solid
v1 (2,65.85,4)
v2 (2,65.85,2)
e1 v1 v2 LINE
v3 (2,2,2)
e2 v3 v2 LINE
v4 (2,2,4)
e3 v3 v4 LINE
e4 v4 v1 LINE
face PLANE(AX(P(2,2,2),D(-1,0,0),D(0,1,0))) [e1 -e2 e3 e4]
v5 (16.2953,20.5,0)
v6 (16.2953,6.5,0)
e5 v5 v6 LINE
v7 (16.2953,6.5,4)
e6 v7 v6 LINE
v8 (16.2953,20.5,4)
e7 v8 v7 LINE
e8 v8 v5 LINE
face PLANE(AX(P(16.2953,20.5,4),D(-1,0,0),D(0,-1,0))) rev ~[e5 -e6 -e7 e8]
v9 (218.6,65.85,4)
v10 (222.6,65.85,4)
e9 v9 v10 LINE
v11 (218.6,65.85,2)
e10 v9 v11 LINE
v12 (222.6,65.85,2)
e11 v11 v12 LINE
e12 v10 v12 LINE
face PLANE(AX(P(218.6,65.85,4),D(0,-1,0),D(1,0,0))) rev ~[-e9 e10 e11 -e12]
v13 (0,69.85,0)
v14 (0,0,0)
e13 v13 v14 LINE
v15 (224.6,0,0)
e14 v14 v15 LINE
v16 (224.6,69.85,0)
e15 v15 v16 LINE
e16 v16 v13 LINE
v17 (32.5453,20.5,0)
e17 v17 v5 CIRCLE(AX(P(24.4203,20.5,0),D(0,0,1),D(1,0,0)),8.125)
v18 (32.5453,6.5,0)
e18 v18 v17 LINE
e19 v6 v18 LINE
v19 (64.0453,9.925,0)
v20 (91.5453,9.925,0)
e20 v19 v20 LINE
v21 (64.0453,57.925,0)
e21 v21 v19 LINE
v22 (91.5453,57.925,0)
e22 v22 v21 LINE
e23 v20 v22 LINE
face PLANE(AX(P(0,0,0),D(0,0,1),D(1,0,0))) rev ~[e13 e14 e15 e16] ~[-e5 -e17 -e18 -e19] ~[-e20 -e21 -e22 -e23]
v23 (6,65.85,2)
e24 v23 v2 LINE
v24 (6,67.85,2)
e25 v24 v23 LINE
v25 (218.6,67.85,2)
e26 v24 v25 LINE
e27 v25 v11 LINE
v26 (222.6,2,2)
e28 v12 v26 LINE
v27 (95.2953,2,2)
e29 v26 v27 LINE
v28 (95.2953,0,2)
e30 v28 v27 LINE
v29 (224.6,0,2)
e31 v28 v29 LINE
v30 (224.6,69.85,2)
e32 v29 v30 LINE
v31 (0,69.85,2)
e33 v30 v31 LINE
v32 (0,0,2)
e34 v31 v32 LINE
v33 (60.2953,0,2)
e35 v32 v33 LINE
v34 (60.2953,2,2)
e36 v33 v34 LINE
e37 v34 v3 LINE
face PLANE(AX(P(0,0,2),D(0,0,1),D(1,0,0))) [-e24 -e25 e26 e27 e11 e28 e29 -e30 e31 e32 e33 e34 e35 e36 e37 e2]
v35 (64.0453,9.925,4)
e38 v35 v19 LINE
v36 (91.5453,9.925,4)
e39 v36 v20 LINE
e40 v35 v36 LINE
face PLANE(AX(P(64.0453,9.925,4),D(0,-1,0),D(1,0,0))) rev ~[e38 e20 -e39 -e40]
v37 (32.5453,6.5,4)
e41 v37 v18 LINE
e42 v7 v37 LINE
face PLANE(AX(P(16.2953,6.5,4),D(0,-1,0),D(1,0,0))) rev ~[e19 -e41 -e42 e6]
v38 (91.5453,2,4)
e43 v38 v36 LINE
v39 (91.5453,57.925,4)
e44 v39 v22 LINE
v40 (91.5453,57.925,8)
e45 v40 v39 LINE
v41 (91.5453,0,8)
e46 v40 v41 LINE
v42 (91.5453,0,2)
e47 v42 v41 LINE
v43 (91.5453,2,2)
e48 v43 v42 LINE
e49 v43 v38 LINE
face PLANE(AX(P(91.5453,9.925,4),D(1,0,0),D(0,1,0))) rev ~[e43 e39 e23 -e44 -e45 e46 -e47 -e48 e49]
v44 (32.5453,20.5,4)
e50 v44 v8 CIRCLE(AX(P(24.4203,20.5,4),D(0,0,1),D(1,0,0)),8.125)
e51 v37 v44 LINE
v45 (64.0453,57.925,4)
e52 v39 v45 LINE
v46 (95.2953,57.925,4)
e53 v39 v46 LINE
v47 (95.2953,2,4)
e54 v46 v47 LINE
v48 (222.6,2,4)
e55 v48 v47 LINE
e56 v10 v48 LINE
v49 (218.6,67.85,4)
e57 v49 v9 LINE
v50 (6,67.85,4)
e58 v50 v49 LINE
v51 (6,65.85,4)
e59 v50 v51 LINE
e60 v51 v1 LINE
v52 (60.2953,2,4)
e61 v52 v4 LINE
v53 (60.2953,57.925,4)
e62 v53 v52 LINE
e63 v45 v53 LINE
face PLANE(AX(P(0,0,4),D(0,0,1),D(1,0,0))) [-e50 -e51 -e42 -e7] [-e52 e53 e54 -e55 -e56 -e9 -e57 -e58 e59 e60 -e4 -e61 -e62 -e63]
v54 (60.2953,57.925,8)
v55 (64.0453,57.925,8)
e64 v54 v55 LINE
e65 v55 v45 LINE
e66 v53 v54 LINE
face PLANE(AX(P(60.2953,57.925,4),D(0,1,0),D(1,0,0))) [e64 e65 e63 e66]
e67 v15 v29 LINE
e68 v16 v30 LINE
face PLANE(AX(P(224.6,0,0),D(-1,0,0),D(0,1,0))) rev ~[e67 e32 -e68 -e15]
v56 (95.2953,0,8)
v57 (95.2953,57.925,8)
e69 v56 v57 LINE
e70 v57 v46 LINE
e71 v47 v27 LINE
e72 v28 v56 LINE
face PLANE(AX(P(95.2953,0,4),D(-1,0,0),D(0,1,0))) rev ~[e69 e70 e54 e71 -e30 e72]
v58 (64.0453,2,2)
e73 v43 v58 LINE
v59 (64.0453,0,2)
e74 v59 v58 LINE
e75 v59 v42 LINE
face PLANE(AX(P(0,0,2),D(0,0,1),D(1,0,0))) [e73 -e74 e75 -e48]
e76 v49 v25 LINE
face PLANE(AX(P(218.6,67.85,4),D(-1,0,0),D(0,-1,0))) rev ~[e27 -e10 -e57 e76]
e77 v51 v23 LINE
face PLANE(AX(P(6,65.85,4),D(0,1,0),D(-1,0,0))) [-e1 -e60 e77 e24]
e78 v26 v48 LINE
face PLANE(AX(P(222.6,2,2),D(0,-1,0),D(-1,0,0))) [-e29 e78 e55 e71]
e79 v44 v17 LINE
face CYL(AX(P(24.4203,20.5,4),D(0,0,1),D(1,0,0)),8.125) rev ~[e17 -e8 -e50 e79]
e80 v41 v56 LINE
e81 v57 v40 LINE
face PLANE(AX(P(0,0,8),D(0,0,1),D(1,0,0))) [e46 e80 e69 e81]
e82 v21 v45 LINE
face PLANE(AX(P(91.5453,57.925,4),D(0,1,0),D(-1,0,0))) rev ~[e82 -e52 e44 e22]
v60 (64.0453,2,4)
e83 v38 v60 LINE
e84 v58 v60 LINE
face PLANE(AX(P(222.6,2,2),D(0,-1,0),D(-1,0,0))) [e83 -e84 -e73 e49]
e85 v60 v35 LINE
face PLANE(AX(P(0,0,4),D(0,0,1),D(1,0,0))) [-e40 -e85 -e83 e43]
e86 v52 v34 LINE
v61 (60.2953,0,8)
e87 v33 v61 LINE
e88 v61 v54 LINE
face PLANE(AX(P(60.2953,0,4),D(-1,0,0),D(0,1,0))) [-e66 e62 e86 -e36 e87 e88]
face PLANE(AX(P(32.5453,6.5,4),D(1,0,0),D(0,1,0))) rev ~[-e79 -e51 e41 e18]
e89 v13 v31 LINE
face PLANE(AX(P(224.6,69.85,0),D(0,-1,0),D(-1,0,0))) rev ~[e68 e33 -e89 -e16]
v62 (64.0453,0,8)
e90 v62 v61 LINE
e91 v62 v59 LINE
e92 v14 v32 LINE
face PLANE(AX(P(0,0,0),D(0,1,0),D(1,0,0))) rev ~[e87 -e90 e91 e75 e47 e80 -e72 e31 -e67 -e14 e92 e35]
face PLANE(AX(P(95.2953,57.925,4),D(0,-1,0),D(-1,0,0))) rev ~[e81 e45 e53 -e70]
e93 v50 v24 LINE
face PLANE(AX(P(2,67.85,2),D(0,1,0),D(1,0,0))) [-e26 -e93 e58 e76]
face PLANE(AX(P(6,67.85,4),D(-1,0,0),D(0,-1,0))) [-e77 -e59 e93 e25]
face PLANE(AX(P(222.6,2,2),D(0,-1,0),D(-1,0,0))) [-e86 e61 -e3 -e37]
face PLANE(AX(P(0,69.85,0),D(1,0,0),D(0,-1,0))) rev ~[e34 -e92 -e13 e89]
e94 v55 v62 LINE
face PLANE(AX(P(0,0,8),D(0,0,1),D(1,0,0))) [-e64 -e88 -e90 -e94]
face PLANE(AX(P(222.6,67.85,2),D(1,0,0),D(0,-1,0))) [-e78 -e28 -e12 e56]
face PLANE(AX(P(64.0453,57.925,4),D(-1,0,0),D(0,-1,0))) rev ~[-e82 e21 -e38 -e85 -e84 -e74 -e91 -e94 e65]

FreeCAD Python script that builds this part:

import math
import FreeCAD as App
import Part
import Sketcher
from FreeCAD import Vector
Q = App.Units.Quantity


def add_polygon(sketch, points):
    """Adds a closed chain of lines whose ends are joined by coincident constraints."""
    first, n = sketch.GeometryCount, len(points)
    for a, b in zip(points, points[1:] + points[:1]):
        sketch.addGeometry(Part.LineSegment(App.Vector(*a, 0), App.Vector(*b, 0)), False)
    for i in range(n):
        sketch.addConstraint(Sketcher.Constraint("Coincident", first + i, 2, first + (i + 1) % n, 1))

doc = App.newDocument("Part")
body = doc.addObject("PartDesign::Body", "Body")

sketch1 = body.newObject("Sketcher::SketchObject", "Sketch")
sketch1.AttachmentSupport = (doc.getObject("XY_Plane"), [""])
sketch1.MapMode = "FlatFace"
add_polygon(sketch1, [(0, 70), (0, 0), (225, 0), (225, 70)])
sketch1.addConstraint(Sketcher.Constraint("Vertical", 0))
sketch1.addConstraint(Sketcher.Constraint("Horizontal", 1))
sketch1.addConstraint(Sketcher.Constraint("Vertical", 2))
sketch1.addConstraint(Sketcher.Constraint("Horizontal", 3))
sketch1.addConstraint(Sketcher.Constraint("Coincident", 0, 2, -1, 1))
sketch1.addConstraint(Sketcher.Constraint("DistanceX", 1, 1, 1, 2, Q("224.6 mm")))
sketch1.addConstraint(Sketcher.Constraint("DistanceY", 0, 2, 0, 1, Q("69.85 mm")))
pad1 = body.newObject("PartDesign::Pad", "Pad")
pad1.Profile = sketch1
pad1.Length = 2

sketch2 = body.newObject("Sketcher::SketchObject", "Sketch001")
sketch2.AttachmentSupport = (doc.getObject("XY_Plane"), [""])
sketch2.MapMode = "FlatFace"
sketch2.AttachmentOffset = App.Placement(Vector(0, 0, 2), App.Rotation())
add_polygon(sketch2, [(223, 68), (2, 68), (2, 2), (223, 2)])
sketch2.addConstraint(Sketcher.Constraint("Horizontal", 0))
sketch2.addConstraint(Sketcher.Constraint("Vertical", 1))
sketch2.addConstraint(Sketcher.Constraint("Horizontal", 2))
sketch2.addConstraint(Sketcher.Constraint("Vertical", 3))
sketch2.addConstraint(Sketcher.Constraint("DistanceX", -1, 1, 0, 2, Q("2 mm")))
sketch2.addConstraint(Sketcher.Constraint("DistanceY", -1, 1, 1, 2, Q("2 mm")))
sketch2.addConstraint(Sketcher.Constraint("DistanceX", 0, 2, 0, 1, Q("220.6 mm")))
sketch2.addConstraint(Sketcher.Constraint("DistanceY", 1, 2, 1, 1, Q("65.85 mm")))
pad2 = body.newObject("PartDesign::Pad", "Pad001")
pad2.Profile = sketch2
pad2.Length = 2

sketch3 = body.newObject("Sketcher::SketchObject", "Sketch002")
sketch3.AttachmentSupport = (doc.getObject("XY_Plane"), [""])
sketch3.MapMode = "FlatFace"
sketch3.AttachmentOffset = App.Placement(Vector(0, 0, 4), App.Rotation())
add_polygon(sketch3, [(6, 67.8), (2, 67.8), (2, 65.8), (6, 65.8)])
add_polygon(sketch3, [(222.6, 65.8), (222.6, 67.8), (218.6, 67.8), (218.6, 65.8)])
sketch3.addConstraint(Sketcher.Constraint("Horizontal", 0))
sketch3.addConstraint(Sketcher.Constraint("Vertical", 1))
sketch3.addConstraint(Sketcher.Constraint("Horizontal", 2))
sketch3.addConstraint(Sketcher.Constraint("Vertical", 3))
sketch3.addConstraint(Sketcher.Constraint("Vertical", 4))
sketch3.addConstraint(Sketcher.Constraint("Horizontal", 5))
sketch3.addConstraint(Sketcher.Constraint("Vertical", 6))
sketch3.addConstraint(Sketcher.Constraint("Horizontal", 7))
sketch3.addConstraint(Sketcher.Constraint("Horizontal", 3, 2, 4, 2))
sketch3.addConstraint(Sketcher.Constraint("Horizontal", 2, 2, 6, 2))
sketch3.addConstraint(Sketcher.Constraint("Equal", 2, 5))
sketch3.addConstraint(Sketcher.Constraint("DistanceX", 0, 2, 0, 1, Q("4 mm")))
sketch3.addConstraint(Sketcher.Constraint("DistanceY", 1, 2, 1, 1, Q("2 mm")))
sketch3.addConstraint(Sketcher.Constraint("DistanceX", -1, 1, 0, 2, Q("2 mm")))
sketch3.addConstraint(Sketcher.Constraint("DistanceX", -1, 1, 4, 2, Q("222.6 mm")))
sketch3.addConstraint(Sketcher.Constraint("DistanceY", -1, 1, 0, 2, Q("67.85 mm")))
pocket1 = body.newObject("PartDesign::Pocket", "Pocket")
pocket1.Profile = sketch3
pocket1.Length = 2

sketch4 = body.newObject("Sketcher::SketchObject", "Sketch003")
sketch4.AttachmentSupport = (doc.getObject("XY_Plane"), [""])
sketch4.MapMode = "FlatFace"
sketch4.AttachmentOffset = App.Placement(Vector(0, 0, 4), App.Rotation())
add_polygon(sketch4, [(16, 20), (16, 6), (33, 6), (33, 20)])
sketch4.addConstraint(Sketcher.Constraint("Vertical", 0))
sketch4.addConstraint(Sketcher.Constraint("Horizontal", 1))
sketch4.addConstraint(Sketcher.Constraint("Vertical", 2))
sketch4.addConstraint(Sketcher.Constraint("Horizontal", 3))
sketch4.addConstraint(Sketcher.Constraint("DistanceY", 0, 2, 0, 1, Q("14 mm")))
sketch4.addConstraint(Sketcher.Constraint("DistanceX", 1, 1, 1, 2, Q("16.25 mm")))
sketch4.addConstraint(Sketcher.Constraint("DistanceY", -1, 1, 0, 2, Q("6.5 mm")))
sketch4.addConstraint(Sketcher.Constraint("DistanceX", -1, 1, 0, 2, Q("16.2953 mm")))
pocket2 = body.newObject("PartDesign::Pocket", "Pocket001")
pocket2.Profile = sketch4
pocket2.Length = 4

sketch5 = body.newObject("Sketcher::SketchObject", "Sketch004")
sketch5.AttachmentSupport = (doc.getObject("XY_Plane"), [""])
sketch5.MapMode = "FlatFace"
sketch5.AttachmentOffset = App.Placement(Vector(0, 0, 4), App.Rotation())
add_polygon(sketch5, [(64, 58), (64, 10), (92, 10), (92, 58)])
sketch5.addConstraint(Sketcher.Constraint("Vertical", 0))
sketch5.addConstraint(Sketcher.Constraint("Horizontal", 1))
sketch5.addConstraint(Sketcher.Constraint("Vertical", 2))
sketch5.addConstraint(Sketcher.Constraint("Horizontal", 3))
sketch5.addConstraint(Sketcher.Constraint("DistanceY", 0, 2, 0, 1, Q("48 mm")))
sketch5.addConstraint(Sketcher.Constraint("DistanceX", 1, 1, 1, 2, Q("27.5 mm")))
sketch5.addConstraint(Sketcher.Constraint("DistanceY", -1, 1, 0, 2, Q("9.925 mm")))
sketch5.addConstraint(Sketcher.Constraint("DistanceX", -1, 1, 0, 2, Q("64.0453 mm")))
pocket3 = body.newObject("PartDesign::Pocket", "Pocket002")
pocket3.Profile = sketch5
pocket3.Length = 4

sketch6 = body.newObject("Sketcher::SketchObject", "Sketch005")
sketch6.AttachmentSupport = (doc.getObject("XY_Plane"), [""])
sketch6.MapMode = "FlatFace"
sketch6.AttachmentOffset = App.Placement(Vector(0, 0, 4), App.Rotation())
add_polygon(sketch6, [(64, 57.9), (60.3, 57.9), (60.3, 0), (64, 0)])
add_polygon(sketch6, [(91.5, 57.9), (91.5, 0), (95.3, 0), (95.3, 57.9)])
sketch6.addConstraint(Sketcher.Constraint("Horizontal", 0))
sketch6.addConstraint(Sketcher.Constraint("Vertical", 1))
sketch6.addConstraint(Sketcher.Constraint("Horizontal", 2))
sketch6.addConstraint(Sketcher.Constraint("Vertical", 3))
sketch6.addConstraint(Sketcher.Constraint("Vertical", 4))
sketch6.addConstraint(Sketcher.Constraint("Horizontal", 5))
sketch6.addConstraint(Sketcher.Constraint("Vertical", 6))
sketch6.addConstraint(Sketcher.Constraint("Horizontal", 7))
sketch6.addConstraint(Sketcher.Constraint("PointOnObject", 1, 2, -1))
sketch6.addConstraint(Sketcher.Constraint("PointOnObject", 4, 2, -1))
sketch6.addConstraint(Sketcher.Constraint("Horizontal", 3, 2, 6, 2))
sketch6.addConstraint(Sketcher.Constraint("Equal", 2, 5))
sketch6.addConstraint(Sketcher.Constraint("DistanceX", 0, 2, 0, 1, Q("3.75 mm")))
sketch6.addConstraint(Sketcher.Constraint("DistanceX", 1, 2, 5, 2, Q("35 mm")))
sketch6.addConstraint(Sketcher.Constraint("DistanceY", 1, 2, 1, 1, Q("57.925 mm")))
sketch6.addConstraint(Sketcher.Constraint("DistanceX", -1, 1, 0, 2, Q("60.2953 mm")))
pad3 = body.newObject("PartDesign::Pad", "Pad002")
pad3.Profile = sketch6
pad3.Type = "TwoLengths"
pad3.Length = 4
pad3.Length2 = 2

sketch7 = body.newObject("Sketcher::SketchObject", "Sketch006")
sketch7.AttachmentSupport = (doc.getObject("XY_Plane"), [""])
sketch7.MapMode = "FlatFace"
sketch7.AttachmentOffset = App.Placement(Vector(0, 0, 4), App.Rotation())
sketch7.addGeometry(Part.LineSegment(Vector(16, 20, 0), Vector(33, 20, 0)), False)
sketch7.addGeometry(Part.ArcOfCircle(Part.Circle(Vector(24, 20, 0), Vector(0, 0, 1), 8), math.radians(0), math.radians(180)), False)
sketch7.addConstraint(Sketcher.Constraint("Coincident", 0, 1, 1, 2))
sketch7.addConstraint(Sketcher.Constraint("Coincident", 1, 1, 0, 2))
sketch7.addConstraint(Sketcher.Constraint("Horizontal", 0))
sketch7.addConstraint(Sketcher.Constraint("Horizontal", 1, 3, 0, 1))
sketch7.addConstraint(Sketcher.Constraint("Radius", 1, Q("8.125 mm")))
sketch7.addConstraint(Sketcher.Constraint("DistanceY", -1, 1, 1, 3, Q("20.5 mm")))
sketch7.addConstraint(Sketcher.Constraint("DistanceX", -1, 1, 1, 3, Q("24.4203 mm")))
pocket4 = body.newObject("PartDesign::Pocket", "Pocket003")
pocket4.Profile = sketch7
pocket4.Length = 4

doc.recompute()
